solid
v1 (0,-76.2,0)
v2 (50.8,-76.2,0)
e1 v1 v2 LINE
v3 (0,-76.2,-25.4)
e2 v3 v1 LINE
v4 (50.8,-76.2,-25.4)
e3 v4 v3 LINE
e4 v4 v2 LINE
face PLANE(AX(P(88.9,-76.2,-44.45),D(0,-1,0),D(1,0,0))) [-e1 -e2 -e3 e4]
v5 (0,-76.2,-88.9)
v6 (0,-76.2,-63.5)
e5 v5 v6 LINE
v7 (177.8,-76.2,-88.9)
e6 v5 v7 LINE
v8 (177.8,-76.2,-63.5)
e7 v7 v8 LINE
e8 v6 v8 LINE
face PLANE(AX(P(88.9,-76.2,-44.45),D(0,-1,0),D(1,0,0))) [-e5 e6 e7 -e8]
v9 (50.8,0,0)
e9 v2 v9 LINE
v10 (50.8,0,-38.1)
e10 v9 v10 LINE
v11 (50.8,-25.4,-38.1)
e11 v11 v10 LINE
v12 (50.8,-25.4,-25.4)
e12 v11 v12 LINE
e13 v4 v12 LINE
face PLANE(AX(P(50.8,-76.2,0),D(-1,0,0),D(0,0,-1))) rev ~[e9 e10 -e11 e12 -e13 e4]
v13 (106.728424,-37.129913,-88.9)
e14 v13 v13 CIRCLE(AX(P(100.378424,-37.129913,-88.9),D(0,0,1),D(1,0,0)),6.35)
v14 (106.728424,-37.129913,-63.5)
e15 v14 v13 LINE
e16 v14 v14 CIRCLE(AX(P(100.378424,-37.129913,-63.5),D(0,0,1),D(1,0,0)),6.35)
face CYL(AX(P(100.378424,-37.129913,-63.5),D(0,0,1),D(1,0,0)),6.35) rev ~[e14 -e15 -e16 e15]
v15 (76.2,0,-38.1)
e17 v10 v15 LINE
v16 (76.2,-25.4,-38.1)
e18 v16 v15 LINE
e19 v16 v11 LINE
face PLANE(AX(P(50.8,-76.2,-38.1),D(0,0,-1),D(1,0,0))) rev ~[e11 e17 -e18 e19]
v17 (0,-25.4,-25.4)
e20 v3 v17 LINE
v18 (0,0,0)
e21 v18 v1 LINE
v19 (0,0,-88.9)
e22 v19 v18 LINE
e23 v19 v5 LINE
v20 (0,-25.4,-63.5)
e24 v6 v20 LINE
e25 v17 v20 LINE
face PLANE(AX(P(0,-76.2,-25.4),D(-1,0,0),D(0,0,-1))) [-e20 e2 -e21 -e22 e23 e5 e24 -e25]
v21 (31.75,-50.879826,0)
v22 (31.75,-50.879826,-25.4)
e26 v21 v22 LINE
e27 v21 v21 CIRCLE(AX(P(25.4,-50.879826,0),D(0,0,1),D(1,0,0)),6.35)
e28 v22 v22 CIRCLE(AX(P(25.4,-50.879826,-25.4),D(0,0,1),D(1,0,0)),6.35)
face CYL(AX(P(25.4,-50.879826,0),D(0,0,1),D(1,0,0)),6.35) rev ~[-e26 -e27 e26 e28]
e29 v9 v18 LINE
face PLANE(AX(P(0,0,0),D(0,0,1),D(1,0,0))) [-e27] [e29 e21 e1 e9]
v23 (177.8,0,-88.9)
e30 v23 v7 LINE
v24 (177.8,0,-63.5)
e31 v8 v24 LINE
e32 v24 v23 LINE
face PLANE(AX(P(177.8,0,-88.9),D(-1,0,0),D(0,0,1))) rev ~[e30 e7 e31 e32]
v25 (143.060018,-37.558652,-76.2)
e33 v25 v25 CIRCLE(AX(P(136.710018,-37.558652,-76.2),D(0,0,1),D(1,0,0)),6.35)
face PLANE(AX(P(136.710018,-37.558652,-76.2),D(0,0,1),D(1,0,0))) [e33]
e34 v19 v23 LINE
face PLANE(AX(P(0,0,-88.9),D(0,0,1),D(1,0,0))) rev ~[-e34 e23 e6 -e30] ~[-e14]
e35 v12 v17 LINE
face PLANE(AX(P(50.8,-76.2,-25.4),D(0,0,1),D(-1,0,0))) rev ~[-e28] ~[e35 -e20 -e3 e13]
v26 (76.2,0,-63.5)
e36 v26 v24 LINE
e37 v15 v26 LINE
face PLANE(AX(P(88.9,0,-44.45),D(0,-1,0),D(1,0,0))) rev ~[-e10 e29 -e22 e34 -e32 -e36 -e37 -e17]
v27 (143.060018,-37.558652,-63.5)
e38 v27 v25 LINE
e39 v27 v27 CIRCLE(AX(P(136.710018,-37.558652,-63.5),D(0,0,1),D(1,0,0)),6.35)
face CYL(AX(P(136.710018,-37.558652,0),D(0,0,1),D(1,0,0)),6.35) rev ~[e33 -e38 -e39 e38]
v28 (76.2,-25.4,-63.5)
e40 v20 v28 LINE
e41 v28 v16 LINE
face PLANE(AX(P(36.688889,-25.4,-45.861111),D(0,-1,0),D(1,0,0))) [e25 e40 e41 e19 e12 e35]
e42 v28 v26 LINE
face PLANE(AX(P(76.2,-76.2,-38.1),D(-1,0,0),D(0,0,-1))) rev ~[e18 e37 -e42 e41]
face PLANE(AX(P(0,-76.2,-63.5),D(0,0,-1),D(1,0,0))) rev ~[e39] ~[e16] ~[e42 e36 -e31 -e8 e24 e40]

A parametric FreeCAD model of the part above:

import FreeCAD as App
import Part
import Sketcher
from FreeCAD import Vector
Q = App.Units.Quantity

doc = App.newDocument("Part")
body = doc.addObject("PartDesign::Body", "Body")

# Sketch on XZ plane
sketch1 = body.newObject("Sketcher::SketchObject", "Sketch")
sketch1.AttachmentSupport = (doc.getObject("XZ_Plane"), [""])
sketch1.MapMode = "FlatFace"
sketch1.addGeometry([
    Part.LineSegment(Vector(0, 0, 0), Vector(0, -88.9, 0)),
    Part.LineSegment(Vector(0, -88.9, 0), Vector(177.8, -88.9, 0)),
    Part.LineSegment(Vector(177.8, -88.9, 0), Vector(177.8, 0, 0)),
    Part.LineSegment(Vector(177.8, 0, 0), Vector(0, 0, 0)),
], False)
sketch1.addConstraint([
    Sketcher.Constraint("Coincident", 0, 2, 1, 1),
    Sketcher.Constraint("Coincident", 1, 2, 2, 1),
    Sketcher.Constraint("Coincident", 2, 2, 3, 1),
    Sketcher.Constraint("Coincident", 3, 2, 0, 1),
    Sketcher.Constraint("Vertical", 0),
    Sketcher.Constraint("Horizontal", 1),
    Sketcher.Constraint("Vertical", 2),
    Sketcher.Constraint("Horizontal", 3),
    Sketcher.Constraint("Coincident", 3, 2, -1, 1),
    Sketcher.Constraint("DistanceX", 1, 1, 1, 2, Q("7 in")),
    Sketcher.Constraint("DistanceY", 0, 2, 0, 1, Q("3.5 in")),
])
pad1 = body.newObject("PartDesign::Pad", "Pad")
pad1.Profile = sketch1
pad1.Length = Q("3 in")

# Sketch on XZ plane
sketch2 = body.newObject("Sketcher::SketchObject", "Sketch001")
sketch2.AttachmentSupport = (doc.getObject("XZ_Plane"), [""])
sketch2.MapMode = "FlatFace"
sketch2.AttachmentOffset = App.Placement(Vector(0, 0, 3 * 25.4), App.Rotation())
sketch2.addGeometry([
    Part.LineSegment(Vector(0, 0, 0), Vector(0, -88.9, 0)),  # 0
    Part.LineSegment(Vector(0, -88.9, 0), Vector(177.8, -88.9, 0)),  # 1
    Part.LineSegment(Vector(177.8, -88.9, 0), Vector(177.8, -63.5, 0)),  # 2
    Part.LineSegment(Vector(177.8, -63.5, 0), Vector(76.2, -63.5, 0)),  # 3
    Part.LineSegment(Vector(76.2, -63.5, 0), Vector(76.2, -38.1, 0)),  # 4
    Part.LineSegment(Vector(76.2, -38.1, 0), Vector(50.8, -38.1, 0)),  # 5
    Part.LineSegment(Vector(50.8, -38.1, 0), Vector(50.8, 0, 0)),  # 6
    Part.LineSegment(Vector(50.8, 0, 0), Vector(0, 0, 0)),  # 7
], False)
sketch2.addConstraint([
    Sketcher.Constraint("Coincident", 0, 2, 1, 1),
    Sketcher.Constraint("Coincident", 1, 2, 2, 1),
    Sketcher.Constraint("Coincident", 2, 2, 3, 1),
    Sketcher.Constraint("Coincident", 3, 2, 4, 1),
    Sketcher.Constraint("Coincident", 4, 2, 5, 1),
    Sketcher.Constraint("Coincident", 5, 2, 6, 1),
    Sketcher.Constraint("Coincident", 6, 2, 7, 1),
    Sketcher.Constraint("Coincident", 7, 2, 0, 1),
    Sketcher.Constraint("Vertical", 0),
    Sketcher.Constraint("Horizontal", 1),
    Sketcher.Constraint("Vertical", 2),
    Sketcher.Constraint("Horizontal", 3),
    Sketcher.Constraint("Vertical", 4),
    Sketcher.Constraint("Horizontal", 5),
    Sketcher.Constraint("Vertical", 6),
    Sketcher.Constraint("Horizontal", 7),
    Sketcher.Constraint("Coincident", 7, 2, -1, 1),
    Sketcher.Constraint("Equal", 5, 2),
    Sketcher.Constraint("Equal", 2, 4),
    Sketcher.Constraint("DistanceX", 1, 1, 1, 2, Q("7 in")),
    Sketcher.Constraint("DistanceX", 3, 2, 3, 1, Q("4 in")),
    Sketcher.Constraint("DistanceX", 5, 2, 5, 1, Q("1 in")),
    Sketcher.Constraint("DistanceY", 0, 2, 0, 1, Q("3.5 in")),
])
pad2 = body.newObject("PartDesign::Pad", "Pad001")
pad2.Profile = sketch2
pad2.Length = Q("3 in")
pad2.Reversed = True

# Sketch on XZ plane
sketch3 = body.newObject("Sketcher::SketchObject", "Sketch002")
sketch3.AttachmentSupport = (doc.getObject("XZ_Plane"), [""])
sketch3.MapMode = "FlatFace"
sketch3.AttachmentOffset = App.Placement(Vector(0, 0, 3 * 25.4), App.Rotation())
sketch3.addGeometry([
    Part.LineSegment(Vector(0, 0, 0), Vector(0, -88.9, 0)),  # 0
    Part.LineSegment(Vector(0, -88.9, 0), Vector(177.8, -88.9, 0)),  # 1
    Part.LineSegment(Vector(177.8, -88.9, 0), Vector(177.8, -63.5, 0)),  # 2
    Part.LineSegment(Vector(177.8, -63.5, 0), Vector(76.2, -63.5, 0)),  # 3
    Part.LineSegment(Vector(76.2, -63.5, 0), Vector(76.2, -38.1, 0)),  # 4
    Part.LineSegment(Vector(76.2, -38.1, 0), Vector(50.8, -38.1, 0)),  # 5
    Part.LineSegment(Vector(50.8, -38.1, 0), Vector(50.8, 0, 0)),  # 6
    Part.LineSegment(Vector(50.8, 0, 0), Vector(0, 0, 0)),  # 7
], False)
sketch3.addConstraint([
    Sketcher.Constraint("Coincident", 0, 2, 1, 1),
    Sketcher.Constraint("Coincident", 1, 2, 2, 1),
    Sketcher.Constraint("Coincident", 2, 2, 3, 1),
    Sketcher.Constraint("Coincident", 3, 2, 4, 1),
    Sketcher.Constraint("Coincident", 4, 2, 5, 1),
    Sketcher.Constraint("Coincident", 5, 2, 6, 1),
    Sketcher.Constraint("Coincident", 6, 2, 7, 1),
    Sketcher.Constraint("Coincident", 7, 2, 0, 1),
    Sketcher.Constraint("Vertical", 0),
    Sketcher.Constraint("Horizontal", 1),
    Sketcher.Constraint("Vertical", 2),
    Sketcher.Constraint("Horizontal", 3),
    Sketcher.Constraint("Vertical", 4),
    Sketcher.Constraint("Horizontal", 5),
    Sketcher.Constraint("Vertical", 6),
    Sketcher.Constraint("Horizontal", 7),
    Sketcher.Constraint("Coincident", 7, 2, -1, 1),
    Sketcher.Constraint("Equal", 5, 2),
    Sketcher.Constraint("Equal", 2, 4),
    Sketcher.Constraint("DistanceX", 1, 1, 1, 2, Q("7 in")),
    Sketcher.Constraint("DistanceX", 3, 2, 3, 1, Q("4 in")),
    Sketcher.Constraint("DistanceX", 5, 2, 5, 1, Q("1 in")),
    Sketcher.Constraint("DistanceY", 0, 2, 0, 1, Q("3.5 in")),
])
pad3 = body.newObject("PartDesign::Pad", "Pad002")
pad3.Profile = sketch3
pad3.Length = Q("3 in")
pad3.Reversed = True

# Sketch on XZ plane
sketch4 = body.newObject("Sketcher::SketchObject", "Sketch003")
sketch4.AttachmentSupport = (doc.getObject("XZ_Plane"), [""])
sketch4.MapMode = "FlatFace"
sketch4.AttachmentOffset = App.Placement(Vector(0, 0, 3 * 25.4), App.Rotation())
sketch4.addGeometry([
    Part.LineSegment(Vector(76.2, -38.1, 0), Vector(76.2, -63.5, 0)),  # 0
    Part.LineSegment(Vector(76.2, -63.5, 0), Vector(177.8, -63.5, 0)),  # 1
    Part.LineSegment(Vector(177.8, -63.5, 0), Vector(177.8, 0, 0)),  # 2
    Part.LineSegment(Vector(177.8, 0, 0), Vector(50.8, 0, 0)),  # 3
    Part.LineSegment(Vector(50.8, 0, 0), Vector(50.8, -38.1, 0)),  # 4
    Part.LineSegment(Vector(50.8, -38.1, 0), Vector(76.2, -38.1, 0)),  # 5
], False)
sketch4.addConstraint([
    Sketcher.Constraint("Coincident", 0, 2, 1, 1),
    Sketcher.Constraint("Coincident", 1, 2, 2, 1),
    Sketcher.Constraint("Coincident", 2, 2, 3, 1),
    Sketcher.Constraint("Coincident", 3, 2, 4, 1),
    Sketcher.Constraint("Coincident", 4, 2, 5, 1),
    Sketcher.Constraint("Coincident", 5, 2, 0, 1),
    Sketcher.Constraint("Vertical", 0),
    Sketcher.Constraint("Horizontal", 1),
    Sketcher.Constraint("Vertical", 2),
    Sketcher.Constraint("Horizontal", 3),
    Sketcher.Constraint("Vertical", 4),
    Sketcher.Constraint("Horizontal", 5),
    Sketcher.Constraint("PointOnObject", 2, 2, -1),
    Sketcher.Constraint("Equal", 5, 0),
    Sketcher.Constraint("DistanceX", 1, 1, 1, 2, Q("4 in")),
    Sketcher.Constraint("DistanceX", 3, 2, 3, 1, Q("5 in")),
    Sketcher.Constraint("DistanceY", 2, 1, 2, 2, Q("2.5 in")),
    Sketcher.Constraint("DistanceX", -1, 1, 0, 2, Q("3 in")),
])
pocket1 = body.newObject("PartDesign::Pocket", "Pocket")
pocket1.Profile = sketch4
pocket1.Length = Q("3 in")

# Sketch on XZ plane
sketch5 = body.newObject("Sketcher::SketchObject", "Sketch004")
sketch5.AttachmentSupport = (doc.getObject("XZ_Plane"), [""])
sketch5.MapMode = "FlatFace"
sketch5.AttachmentOffset = App.Placement(Vector(0, 0, 3 * 25.4), App.Rotation())
sketch5.addGeometry([
    Part.LineSegment(Vector(0, -25.4, 0), Vector(0, -63.5, 0)),  # 0
    Part.LineSegment(Vector(0, -63.5, 0), Vector(76.2, -63.5, 0)),  # 1
    Part.LineSegment(Vector(76.2, -63.5, 0), Vector(76.2, -38.1, 0)),  # 2
    Part.LineSegment(Vector(76.2, -38.1, 0), Vector(50.8, -38.1, 0)),  # 3
    Part.LineSegment(Vector(50.8, -38.1, 0), Vector(50.8, -25.4, 0)),  # 4
    Part.LineSegment(Vector(50.8, -25.4, 0), Vector(0, -25.4, 0)),  # 5
], False)
sketch5.addConstraint([
    Sketcher.Constraint("Coincident", 0, 2, 1, 1),
    Sketcher.Constraint("Coincident", 1, 2, 2, 1),
    Sketcher.Constraint("Coincident", 2, 2, 3, 1),
    Sketcher.Constraint("Coincident", 3, 2, 4, 1),
    Sketcher.Constraint("Coincident", 4, 2, 5, 1),
    Sketcher.Constraint("Coincident", 5, 2, 0, 1),
    Sketcher.Constraint("Vertical", 0),
    Sketcher.Constraint("Horizontal", 1),
    Sketcher.Constraint("Vertical", 2),
    Sketcher.Constraint("Horizontal", 3),
    Sketcher.Constraint("Vertical", 4),
    Sketcher.Constraint("Horizontal", 5),
    Sketcher.Constraint("PointOnObject", 0, 2, -2),
    Sketcher.Constraint("Equal", 3, 2),
    Sketcher.Constraint("DistanceX", 1, 1, 1, 2, Q("3 in")),
    Sketcher.Constraint("DistanceX", 3, 2, 3, 1, Q("1 in")),
    Sketcher.Constraint("DistanceY", 0, 2, 0, 1, Q("1.5 in")),
    Sketcher.Constraint("DistanceY", 4, 2, -1, 1, Q("1 in")),
])
pad4 = body.newObject("PartDesign::Pad", "Pad003")
pad4.Profile = sketch5
pad4.Length = Q("2 in")
pad4.Reversed = True

# Sketch on XZ plane
sketch6 = body.newObject("Sketcher::SketchObject", "Sketch005")
sketch6.AttachmentSupport = (doc.getObject("XZ_Plane"), [""])
sketch6.MapMode = "FlatFace"
sketch6.AttachmentOffset = App.Placement(Vector(0, 0, 3 * 25.4), App.Rotation())
sketch6.addGeometry([
    Part.LineSegment(Vector(0, -25.4, 0), Vector(0, -63.5, 0)),  # 0
    Part.LineSegment(Vector(0, -63.5, 0), Vector(76.2, -63.5, 0)),  # 1
    Part.LineSegment(Vector(76.2, -63.5, 0), Vector(76.2, -38.1, 0)),  # 2
    Part.LineSegment(Vector(76.2, -38.1, 0), Vector(50.8, -38.1, 0)),  # 3
    Part.LineSegment(Vector(50.8, -38.1, 0), Vector(50.8, -25.4, 0)),  # 4
    Part.LineSegment(Vector(50.8, -25.4, 0), Vector(0, -25.4, 0)),  # 5
], False)
sketch6.addConstraint([
    Sketcher.Constraint("Coincident", 0, 2, 1, 1),
    Sketcher.Constraint("Coincident", 1, 2, 2, 1),
    Sketcher.Constraint("Coincident", 2, 2, 3, 1),
    Sketcher.Constraint("Coincident", 3, 2, 4, 1),
    Sketcher.Constraint("Coincident", 4, 2, 5, 1),
    Sketcher.Constraint("Coincident", 5, 2, 0, 1),
    Sketcher.Constraint("Vertical", 0),
    Sketcher.Constraint("Horizontal", 1),
    Sketcher.Constraint("Vertical", 2),
    Sketcher.Constraint("Horizontal", 3),
    Sketcher.Constraint("Vertical", 4),
    Sketcher.Constraint("Horizontal", 5),
    Sketcher.Constraint("PointOnObject", 0, 2, -2),
    Sketcher.Constraint("Equal", 3, 2),
    Sketcher.Constraint("DistanceX", 1, 1, 1, 2, Q("3 in")),
    Sketcher.Constraint("DistanceX", 3, 2, 3, 1, Q("1 in")),
    Sketcher.Constraint("DistanceY", 0, 2, 0, 1, Q("1.5 in")),
    Sketcher.Constraint("DistanceY", 4, 2, -1, 1, Q("1 in")),
])
pocket2 = body.newObject("PartDesign::Pocket", "Pocket001")
pocket2.Profile = sketch6
pocket2.Length = Q("2 in")

# Sketch on XY plane
sketch7 = body.newObject("Sketcher::SketchObject", "Sketch006")
sketch7.AttachmentSupport = (doc.getObject("XY_Plane"), [""])
sketch7.MapMode = "FlatFace"
sketch7.addGeometry(Part.Circle(Vector(25.4, -50.079788, 0), Vector(0, 0, 1), 6.35), False)
sketch7.addConstraint([
    Sketcher.Constraint("Diameter", 0, Q("0.5 in")),
    Sketcher.Constraint("DistanceX", -1, 1, 0, 3, Q("1 in")),
    Sketcher.Constraint("DistanceY", 0, 3, -1, 1, 50.079788),
])
pad5 = body.newObject("PartDesign::Pad", "Pad004")
pad5.Profile = sketch7
pad5.Length = Q("1 in")
pad5.Reversed = True

# Sketch on XY plane
sketch8 = body.newObject("Sketcher::SketchObject", "Sketch007")
sketch8.AttachmentSupport = (doc.getObject("XY_Plane"), [""])
sketch8.MapMode = "FlatFace"
sketch8.addGeometry(Part.Circle(Vector(25.4, -50.879826, 0), Vector(0, 0, 1), 6.35), False)
sketch8.addConstraint([
    Sketcher.Constraint("Diameter", 0, Q("0.5 in")),
    Sketcher.Constraint("DistanceX", -1, 1, 0, 3, Q("1 in")),
    Sketcher.Constraint("DistanceY", 0, 3, -1, 1, 50.879826),
])
pocket3 = body.newObject("PartDesign::Pocket", "Pocket002")
pocket3.Profile = sketch8
pocket3.Length = Q("1 in")

# Sketch on XY plane
sketch9 = body.newObject("Sketcher::SketchObject", "Sketch008")
sketch9.AttachmentSupport = (doc.getObject("XY_Plane"), [""])
sketch9.MapMode = "FlatFace"
sketch9.addGeometry(Part.Circle(Vector(25.4, -50.879826, 0), Vector(0, 0, 1), 6.35), False)
sketch9.addConstraint([
    Sketcher.Constraint("Diameter", 0, Q("0.5 in")),
    Sketcher.Constraint("DistanceX", -1, 1, 0, 3, Q("1 in")),
    Sketcher.Constraint("DistanceY", 0, 3, -1, 1, 50.879826),
])
pocket4 = body.newObject("PartDesign::Pocket", "Pocket003")
pocket4.Profile = sketch9
pocket4.Length = Q("1 in")

# Sketch on XY plane
sketch10 = body.newObject("Sketcher::SketchObject", "Sketch009")
sketch10.AttachmentSupport = (doc.getObject("XY_Plane"), [""])
sketch10.MapMode = "FlatFace"
sketch10.addGeometry([
    Part.Circle(Vector(139.137983, -37.799459, 0), Vector(0, 0, 1), 6.35),
    Part.Circle(Vector(101.160564, -37.799459, 0), Vector(0, 0, 1), 6.35),
], False)
sketch10.addConstraint([
    Sketcher.Constraint("Equal", 0, 1),
    Sketcher.Constraint("Horizontal", 0, 3, 1, 3),
    Sketcher.Constraint("Diameter", 0, Q("0.5 in")),
    Sketcher.Constraint("DistanceY", 0, 3, -1, 1, 37.799459),
    Sketcher.Constraint("DistanceX", 1, 3, 0, 3, 37.977419),
    Sketcher.Constraint("DistanceX", -1, 1, 0, 3, 139.137983),
])
pocket5 = body.newObject("PartDesign::Pocket", "Pocket004")
pocket5.Profile = sketch10
pocket5.Length = Q("1 in")

# Sketch on XY plane
sketch11 = body.newObject("Sketcher::SketchObject", "Sketch010")
sketch11.AttachmentSupport = (doc.getObject("XY_Plane"), [""])
sketch11.MapMode = "FlatFace"
sketch11.AttachmentOffset = App.Placement(Vector(0, 0, -2.5 * 25.4), App.Rotation())
sketch11.addGeometry(Part.Circle(Vector(100.378424, -37.129913, 0), Vector(0, 0, 1), 6.35), False)
sketch11.addConstraint([
    Sketcher.Constraint("Diameter", 0, Q("0.5 in")),
    Sketcher.Constraint("DistanceX", -1, 1, 0, 3, 100.378424),
    Sketcher.Constraint("DistanceY", 0, 3, -1, 1, 37.129913),
])
pocket6 = body.newObject("PartDesign::Pocket", "Pocket005")
pocket6.Profile = sketch11
pocket6.Length = Q("2 in")

# Sketch on XY plane
sketch12 = body.newObject("Sketcher::SketchObject", "Sketch011")
sketch12.AttachmentSupport = (doc.getObject("XY_Plane"), [""])
sketch12.MapMode = "FlatFace"
sketch12.addGeometry(Part.Circle(Vector(136.710018, -37.558652, 0), Vector(0, 0, 1), 6.35), False)
sketch12.addConstraint([
    Sketcher.Constraint("Diameter", 0, Q("0.5 in")),
    Sketcher.Constraint("DistanceX", -1, 1, 0, 3, 136.710018),
    Sketcher.Constraint("DistanceY", 0, 3, -1, 1, 37.558652),
])
pocket7 = body.newObject("PartDesign::Pocket", "Pocket006")
pocket7.Profile = sketch12
pocket7.Length = Q("3 in")

doc.recompute()
